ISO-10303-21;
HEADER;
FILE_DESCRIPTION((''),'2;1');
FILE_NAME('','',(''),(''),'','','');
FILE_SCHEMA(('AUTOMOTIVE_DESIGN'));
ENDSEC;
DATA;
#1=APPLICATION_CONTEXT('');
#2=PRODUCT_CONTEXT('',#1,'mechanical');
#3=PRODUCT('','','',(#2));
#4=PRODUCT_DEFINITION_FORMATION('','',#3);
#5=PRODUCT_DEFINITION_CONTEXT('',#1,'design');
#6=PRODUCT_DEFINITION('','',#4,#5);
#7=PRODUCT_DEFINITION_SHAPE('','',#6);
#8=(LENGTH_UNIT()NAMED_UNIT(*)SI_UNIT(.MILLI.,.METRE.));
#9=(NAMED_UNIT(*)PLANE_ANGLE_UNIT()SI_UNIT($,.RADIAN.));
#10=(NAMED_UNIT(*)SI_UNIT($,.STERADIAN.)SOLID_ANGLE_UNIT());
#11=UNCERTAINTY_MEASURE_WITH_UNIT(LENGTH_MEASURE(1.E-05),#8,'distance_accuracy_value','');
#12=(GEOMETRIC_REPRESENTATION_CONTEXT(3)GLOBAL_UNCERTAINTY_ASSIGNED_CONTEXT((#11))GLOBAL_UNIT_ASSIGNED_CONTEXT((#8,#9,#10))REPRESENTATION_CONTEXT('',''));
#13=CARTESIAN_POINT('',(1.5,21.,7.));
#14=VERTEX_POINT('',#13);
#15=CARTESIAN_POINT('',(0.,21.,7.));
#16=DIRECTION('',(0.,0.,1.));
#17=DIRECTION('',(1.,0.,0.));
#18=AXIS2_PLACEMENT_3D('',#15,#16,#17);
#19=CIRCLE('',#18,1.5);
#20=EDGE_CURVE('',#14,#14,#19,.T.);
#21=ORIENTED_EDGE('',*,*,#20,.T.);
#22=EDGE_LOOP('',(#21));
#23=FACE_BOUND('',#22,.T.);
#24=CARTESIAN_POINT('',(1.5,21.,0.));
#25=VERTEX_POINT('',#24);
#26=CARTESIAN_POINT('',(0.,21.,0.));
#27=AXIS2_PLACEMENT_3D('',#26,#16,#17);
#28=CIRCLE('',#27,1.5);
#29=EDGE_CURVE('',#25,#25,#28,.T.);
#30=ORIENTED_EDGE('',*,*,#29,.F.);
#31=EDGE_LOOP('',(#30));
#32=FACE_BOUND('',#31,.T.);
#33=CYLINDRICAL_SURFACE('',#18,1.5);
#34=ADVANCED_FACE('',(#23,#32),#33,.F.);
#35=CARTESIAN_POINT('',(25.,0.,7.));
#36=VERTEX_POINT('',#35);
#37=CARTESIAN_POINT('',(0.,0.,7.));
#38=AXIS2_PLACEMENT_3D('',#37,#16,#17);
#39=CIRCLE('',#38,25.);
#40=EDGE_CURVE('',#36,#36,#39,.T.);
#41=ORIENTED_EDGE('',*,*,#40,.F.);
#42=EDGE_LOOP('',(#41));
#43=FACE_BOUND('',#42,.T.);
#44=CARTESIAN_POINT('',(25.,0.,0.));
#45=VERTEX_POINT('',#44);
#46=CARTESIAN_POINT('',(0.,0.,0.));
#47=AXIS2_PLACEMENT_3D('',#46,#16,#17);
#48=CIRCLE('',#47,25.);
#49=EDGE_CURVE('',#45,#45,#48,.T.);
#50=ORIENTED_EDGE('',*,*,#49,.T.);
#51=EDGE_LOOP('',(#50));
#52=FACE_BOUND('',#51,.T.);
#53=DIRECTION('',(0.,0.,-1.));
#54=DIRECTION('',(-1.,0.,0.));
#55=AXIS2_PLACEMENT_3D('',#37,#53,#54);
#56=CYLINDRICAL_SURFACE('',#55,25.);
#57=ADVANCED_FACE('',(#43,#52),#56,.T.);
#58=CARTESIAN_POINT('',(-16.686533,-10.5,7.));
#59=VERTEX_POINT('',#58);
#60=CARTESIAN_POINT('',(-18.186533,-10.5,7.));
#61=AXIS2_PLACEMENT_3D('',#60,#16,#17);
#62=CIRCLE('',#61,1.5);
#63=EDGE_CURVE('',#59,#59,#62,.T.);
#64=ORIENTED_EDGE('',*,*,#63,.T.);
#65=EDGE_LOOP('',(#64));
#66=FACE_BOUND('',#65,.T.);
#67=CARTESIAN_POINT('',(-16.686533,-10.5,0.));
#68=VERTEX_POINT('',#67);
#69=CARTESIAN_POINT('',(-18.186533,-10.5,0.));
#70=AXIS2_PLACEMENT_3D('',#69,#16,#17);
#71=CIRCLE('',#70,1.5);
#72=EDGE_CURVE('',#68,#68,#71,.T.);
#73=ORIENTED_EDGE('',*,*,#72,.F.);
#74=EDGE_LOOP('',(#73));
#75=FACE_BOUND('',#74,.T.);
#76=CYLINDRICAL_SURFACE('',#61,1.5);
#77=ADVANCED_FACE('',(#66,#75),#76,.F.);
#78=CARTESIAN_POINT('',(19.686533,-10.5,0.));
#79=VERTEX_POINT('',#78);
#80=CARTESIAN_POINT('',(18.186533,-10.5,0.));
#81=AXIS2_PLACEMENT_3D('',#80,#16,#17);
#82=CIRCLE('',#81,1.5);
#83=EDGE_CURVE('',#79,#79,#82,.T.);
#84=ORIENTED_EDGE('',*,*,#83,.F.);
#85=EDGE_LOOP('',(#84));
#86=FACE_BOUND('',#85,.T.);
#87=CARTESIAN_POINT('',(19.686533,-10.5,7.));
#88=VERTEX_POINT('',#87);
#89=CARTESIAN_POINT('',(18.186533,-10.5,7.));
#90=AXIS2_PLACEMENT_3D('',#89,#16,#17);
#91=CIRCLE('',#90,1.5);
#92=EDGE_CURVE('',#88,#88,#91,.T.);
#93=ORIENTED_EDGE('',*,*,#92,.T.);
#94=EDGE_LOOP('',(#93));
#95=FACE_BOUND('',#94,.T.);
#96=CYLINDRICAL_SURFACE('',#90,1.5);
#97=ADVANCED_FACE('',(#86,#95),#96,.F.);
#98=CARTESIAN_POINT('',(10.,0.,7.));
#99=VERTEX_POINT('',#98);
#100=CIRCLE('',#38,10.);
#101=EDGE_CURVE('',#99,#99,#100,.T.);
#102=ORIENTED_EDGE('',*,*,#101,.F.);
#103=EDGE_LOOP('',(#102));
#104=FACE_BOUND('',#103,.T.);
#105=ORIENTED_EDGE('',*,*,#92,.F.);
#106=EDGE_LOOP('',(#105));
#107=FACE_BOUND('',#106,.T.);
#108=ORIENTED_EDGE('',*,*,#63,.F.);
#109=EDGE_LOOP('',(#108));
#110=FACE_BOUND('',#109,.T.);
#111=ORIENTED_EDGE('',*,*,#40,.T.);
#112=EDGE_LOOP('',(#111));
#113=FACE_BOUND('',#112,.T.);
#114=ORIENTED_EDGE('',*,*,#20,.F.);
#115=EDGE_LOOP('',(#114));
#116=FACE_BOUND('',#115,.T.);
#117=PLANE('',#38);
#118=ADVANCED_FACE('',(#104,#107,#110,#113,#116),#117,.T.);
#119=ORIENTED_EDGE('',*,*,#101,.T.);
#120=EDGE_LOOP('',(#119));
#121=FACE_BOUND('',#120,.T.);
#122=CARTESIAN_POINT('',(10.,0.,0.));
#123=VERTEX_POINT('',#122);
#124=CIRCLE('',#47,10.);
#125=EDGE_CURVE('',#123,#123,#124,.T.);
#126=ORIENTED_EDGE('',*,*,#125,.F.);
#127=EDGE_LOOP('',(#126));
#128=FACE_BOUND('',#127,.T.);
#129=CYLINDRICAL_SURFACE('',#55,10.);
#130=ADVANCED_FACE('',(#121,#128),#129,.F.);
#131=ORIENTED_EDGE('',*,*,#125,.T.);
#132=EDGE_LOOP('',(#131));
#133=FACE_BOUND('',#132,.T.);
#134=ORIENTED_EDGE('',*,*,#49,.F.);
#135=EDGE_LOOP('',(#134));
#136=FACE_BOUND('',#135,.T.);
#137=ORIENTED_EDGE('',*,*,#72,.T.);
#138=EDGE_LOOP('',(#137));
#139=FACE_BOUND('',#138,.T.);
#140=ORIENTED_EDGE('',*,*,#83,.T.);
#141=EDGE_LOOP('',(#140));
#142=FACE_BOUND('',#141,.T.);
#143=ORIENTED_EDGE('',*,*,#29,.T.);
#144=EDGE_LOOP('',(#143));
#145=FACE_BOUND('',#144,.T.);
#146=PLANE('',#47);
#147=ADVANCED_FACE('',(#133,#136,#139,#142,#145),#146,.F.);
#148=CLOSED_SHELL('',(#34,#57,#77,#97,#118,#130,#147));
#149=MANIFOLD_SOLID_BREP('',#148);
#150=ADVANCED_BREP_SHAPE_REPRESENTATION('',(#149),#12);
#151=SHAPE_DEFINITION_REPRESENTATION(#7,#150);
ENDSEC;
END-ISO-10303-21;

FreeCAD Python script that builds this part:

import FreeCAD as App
import Part
import Sketcher
from FreeCAD import Vector
Q = App.Units.Quantity

doc = App.newDocument("Part")
params = doc.addObject("Spreadsheet::Sheet", "Params")
for row, (alias, value) in enumerate([
    ("sketch1_diameter", "50 mm"),
    ("sketch1_diameter2", "20 mm"),
    ("pad1_length", "7 mm"),
    ("sketch2_diameter", "3 mm"),
    ("hole_diameter", "3 mm"),
], start=1):
    params.set(f"A{row}", alias)
    params.set(f"B{row}", "=" + value)
    params.setAlias(f"B{row}", alias)

body = doc.addObject("PartDesign::Body", "Body")

# Sketch on XY plane
sketch1 = body.newObject("Sketcher::SketchObject", "Sketch")
sketch1.AttachmentSupport = (doc.getObject("XY_Plane"), [""])
sketch1.MapMode = "FlatFace"
sketch1.addGeometry([
    Part.Circle(Vector(0, 0, 0), Vector(0, 0, 1), 25),
    Part.Circle(Vector(0, 0, 0), Vector(0, 0, 1), 10),
], False)
sketch1.addConstraint([
    Sketcher.Constraint("Coincident", 0, 3, -1, 1),
    Sketcher.Constraint("Coincident", 1, 3, -1, 1),
    Sketcher.Constraint("Diameter", 0, Q("50 mm")),
    Sketcher.Constraint("Diameter", 1, Q("20 mm")),
])
sketch1.setExpression("Constraints[2]", "Params.sketch1_diameter")
sketch1.setExpression("Constraints[3]", "Params.sketch1_diameter2")
pad1 = body.newObject("PartDesign::Pad", "Pad")
pad1.Profile = sketch1
pad1.setExpression("Length", "Params.pad1_length")

# Sketch on XY plane
sketch2 = body.newObject("Sketcher::SketchObject", "Sketch001")
sketch2.AttachmentSupport = (doc.getObject("XY_Plane"), [""])
sketch2.MapMode = "FlatFace"
sketch2.AttachmentOffset = App.Placement(Vector(0, 0, 7), App.Rotation())
sketch2.addGeometry(Part.Circle(Vector(0, 21, 0), Vector(0, 0, 1), 1.5), False)
sketch2.addConstraint([
    Sketcher.Constraint("PointOnObject", 0, 3, -2),
    Sketcher.Constraint("Diameter", 0, Q("3 mm")),
    Sketcher.Constraint("DistanceY", -1, 1, 0, 3, Q("21 mm")),
])
sketch2.setExpression("Constraints[1]", "Params.sketch2_diameter")
doc.recompute()
hole = body.newObject("PartDesign::Hole", "Hole")
hole.Profile = sketch2
hole.ThreadType = "None"
hole.setExpression("Diameter", "Params.hole_diameter")
hole.DepthType = "ThroughAll"
doc.recompute()

polarpattern = body.newObject("PartDesign::PolarPattern", "PolarPattern")
polarpattern.Originals = [hole]
polarpattern.Axis = (doc.getObject("Z_Axis"), [""])
polarpattern.Angle = 360
polarpattern.Occurrences = 3
body.Tip = polarpattern

doc.recompute()
